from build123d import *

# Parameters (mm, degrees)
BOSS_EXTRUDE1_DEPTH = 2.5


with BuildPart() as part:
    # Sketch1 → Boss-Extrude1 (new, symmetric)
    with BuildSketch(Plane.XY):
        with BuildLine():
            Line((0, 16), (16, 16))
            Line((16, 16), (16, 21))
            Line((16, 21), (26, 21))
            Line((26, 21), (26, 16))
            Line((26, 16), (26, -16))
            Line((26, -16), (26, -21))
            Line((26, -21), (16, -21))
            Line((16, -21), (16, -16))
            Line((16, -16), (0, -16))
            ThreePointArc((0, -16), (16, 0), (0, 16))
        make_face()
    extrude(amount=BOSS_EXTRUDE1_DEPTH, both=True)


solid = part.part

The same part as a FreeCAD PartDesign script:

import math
import FreeCAD as App
import Part
import Sketcher

V = App.Vector
Q = App.Units.Quantity

doc = App.newDocument("Part")
params = doc.addObject("Spreadsheet::Sheet", "Params")
for row, (alias, value) in enumerate([
    ("sketch1_radius", "16 mm"),
    ("sketch1_width", "16 mm"),
    ("sketch1_width2", "10 mm"),
    ("sketch1_height", "5 mm"),
    ("pad1_length", "5 mm"),
], start=1):
    params.set(f"A{row}", alias)
    params.set(f"B{row}", "=" + value)
    params.setAlias(f"B{row}", alias)

body = doc.addObject("PartDesign::Body", "Body")

# Sketch on XY plane
sketch1 = doc.addObject("Sketcher::SketchObject", "Sketch")
body.addObject(sketch1)
sketch1.AttachmentSupport = (doc.XY_Plane, [""])
sketch1.MapMode = "FlatFace"
sketch1.addGeometry([
    Part.LineSegment(V(16, 16, 0), V(0, 16, 0)),  # 0
    Part.ArcOfCircle(Part.Circle(V(0, 0, 0), V(0, 0, 1), 16), math.radians(-90), math.radians(90)),  # 1
    Part.LineSegment(V(0, -16, 0), V(16, -16, 0)),  # 2
    Part.LineSegment(V(16, -16, 0), V(16, -21, 0)),  # 3
    Part.LineSegment(V(16, -21, 0), V(26, -21, 0)),  # 4
    Part.LineSegment(V(26, -21, 0), V(26, 21, 0)),  # 5
    Part.LineSegment(V(26, 21, 0), V(16, 21, 0)),  # 6
    Part.LineSegment(V(16, 21, 0), V(16, 16, 0)),  # 7
], False)
sketch1.addConstraint([
    Sketcher.Constraint("Tangent", 0, 2, 1, 2),
    Sketcher.Constraint("Tangent", 1, 1, 2, 1),
    Sketcher.Constraint("Coincident", 2, 2, 3, 1),
    Sketcher.Constraint("Coincident", 3, 2, 4, 1),
    Sketcher.Constraint("Coincident", 4, 2, 5, 1),
    Sketcher.Constraint("Coincident", 5, 2, 6, 1),
    Sketcher.Constraint("Coincident", 6, 2, 7, 1),
    Sketcher.Constraint("Coincident", 7, 2, 0, 1),
    Sketcher.Constraint("Horizontal", 0),
    Sketcher.Constraint("Horizontal", 2),
    Sketcher.Constraint("Vertical", 3),
    Sketcher.Constraint("Horizontal", 4),
    Sketcher.Constraint("Vertical", 5),
    Sketcher.Constraint("Horizontal", 6),
    Sketcher.Constraint("Vertical", 7),
    Sketcher.Constraint("Coincident", 1, 3, -1, 1),
    Sketcher.Constraint("Symmetric", 3, 2, 6, 2, -1),
    Sketcher.Constraint("Radius", 1, Q("16 mm")),
    Sketcher.Constraint("DistanceX", 0, 2, 0, 1, Q("16 mm")),
    Sketcher.Constraint("DistanceX", 4, 1, 4, 2, Q("10 mm")),
    Sketcher.Constraint("DistanceY", 3, 2, 3, 1, Q("5 mm")),
])
sketch1.setExpression("Constraints[17]", "Params.sketch1_radius")
sketch1.setExpression("Constraints[18]", "Params.sketch1_width")
sketch1.setExpression("Constraints[19]", "Params.sketch1_width2")
sketch1.setExpression("Constraints[20]", "Params.sketch1_height")
pad1 = doc.addObject("PartDesign::Pad", "Pad")
body.addObject(pad1)
pad1.Profile = sketch1
pad1.setExpression("Length", "Params.pad1_length")
pad1.Midplane = True

doc.recompute()
